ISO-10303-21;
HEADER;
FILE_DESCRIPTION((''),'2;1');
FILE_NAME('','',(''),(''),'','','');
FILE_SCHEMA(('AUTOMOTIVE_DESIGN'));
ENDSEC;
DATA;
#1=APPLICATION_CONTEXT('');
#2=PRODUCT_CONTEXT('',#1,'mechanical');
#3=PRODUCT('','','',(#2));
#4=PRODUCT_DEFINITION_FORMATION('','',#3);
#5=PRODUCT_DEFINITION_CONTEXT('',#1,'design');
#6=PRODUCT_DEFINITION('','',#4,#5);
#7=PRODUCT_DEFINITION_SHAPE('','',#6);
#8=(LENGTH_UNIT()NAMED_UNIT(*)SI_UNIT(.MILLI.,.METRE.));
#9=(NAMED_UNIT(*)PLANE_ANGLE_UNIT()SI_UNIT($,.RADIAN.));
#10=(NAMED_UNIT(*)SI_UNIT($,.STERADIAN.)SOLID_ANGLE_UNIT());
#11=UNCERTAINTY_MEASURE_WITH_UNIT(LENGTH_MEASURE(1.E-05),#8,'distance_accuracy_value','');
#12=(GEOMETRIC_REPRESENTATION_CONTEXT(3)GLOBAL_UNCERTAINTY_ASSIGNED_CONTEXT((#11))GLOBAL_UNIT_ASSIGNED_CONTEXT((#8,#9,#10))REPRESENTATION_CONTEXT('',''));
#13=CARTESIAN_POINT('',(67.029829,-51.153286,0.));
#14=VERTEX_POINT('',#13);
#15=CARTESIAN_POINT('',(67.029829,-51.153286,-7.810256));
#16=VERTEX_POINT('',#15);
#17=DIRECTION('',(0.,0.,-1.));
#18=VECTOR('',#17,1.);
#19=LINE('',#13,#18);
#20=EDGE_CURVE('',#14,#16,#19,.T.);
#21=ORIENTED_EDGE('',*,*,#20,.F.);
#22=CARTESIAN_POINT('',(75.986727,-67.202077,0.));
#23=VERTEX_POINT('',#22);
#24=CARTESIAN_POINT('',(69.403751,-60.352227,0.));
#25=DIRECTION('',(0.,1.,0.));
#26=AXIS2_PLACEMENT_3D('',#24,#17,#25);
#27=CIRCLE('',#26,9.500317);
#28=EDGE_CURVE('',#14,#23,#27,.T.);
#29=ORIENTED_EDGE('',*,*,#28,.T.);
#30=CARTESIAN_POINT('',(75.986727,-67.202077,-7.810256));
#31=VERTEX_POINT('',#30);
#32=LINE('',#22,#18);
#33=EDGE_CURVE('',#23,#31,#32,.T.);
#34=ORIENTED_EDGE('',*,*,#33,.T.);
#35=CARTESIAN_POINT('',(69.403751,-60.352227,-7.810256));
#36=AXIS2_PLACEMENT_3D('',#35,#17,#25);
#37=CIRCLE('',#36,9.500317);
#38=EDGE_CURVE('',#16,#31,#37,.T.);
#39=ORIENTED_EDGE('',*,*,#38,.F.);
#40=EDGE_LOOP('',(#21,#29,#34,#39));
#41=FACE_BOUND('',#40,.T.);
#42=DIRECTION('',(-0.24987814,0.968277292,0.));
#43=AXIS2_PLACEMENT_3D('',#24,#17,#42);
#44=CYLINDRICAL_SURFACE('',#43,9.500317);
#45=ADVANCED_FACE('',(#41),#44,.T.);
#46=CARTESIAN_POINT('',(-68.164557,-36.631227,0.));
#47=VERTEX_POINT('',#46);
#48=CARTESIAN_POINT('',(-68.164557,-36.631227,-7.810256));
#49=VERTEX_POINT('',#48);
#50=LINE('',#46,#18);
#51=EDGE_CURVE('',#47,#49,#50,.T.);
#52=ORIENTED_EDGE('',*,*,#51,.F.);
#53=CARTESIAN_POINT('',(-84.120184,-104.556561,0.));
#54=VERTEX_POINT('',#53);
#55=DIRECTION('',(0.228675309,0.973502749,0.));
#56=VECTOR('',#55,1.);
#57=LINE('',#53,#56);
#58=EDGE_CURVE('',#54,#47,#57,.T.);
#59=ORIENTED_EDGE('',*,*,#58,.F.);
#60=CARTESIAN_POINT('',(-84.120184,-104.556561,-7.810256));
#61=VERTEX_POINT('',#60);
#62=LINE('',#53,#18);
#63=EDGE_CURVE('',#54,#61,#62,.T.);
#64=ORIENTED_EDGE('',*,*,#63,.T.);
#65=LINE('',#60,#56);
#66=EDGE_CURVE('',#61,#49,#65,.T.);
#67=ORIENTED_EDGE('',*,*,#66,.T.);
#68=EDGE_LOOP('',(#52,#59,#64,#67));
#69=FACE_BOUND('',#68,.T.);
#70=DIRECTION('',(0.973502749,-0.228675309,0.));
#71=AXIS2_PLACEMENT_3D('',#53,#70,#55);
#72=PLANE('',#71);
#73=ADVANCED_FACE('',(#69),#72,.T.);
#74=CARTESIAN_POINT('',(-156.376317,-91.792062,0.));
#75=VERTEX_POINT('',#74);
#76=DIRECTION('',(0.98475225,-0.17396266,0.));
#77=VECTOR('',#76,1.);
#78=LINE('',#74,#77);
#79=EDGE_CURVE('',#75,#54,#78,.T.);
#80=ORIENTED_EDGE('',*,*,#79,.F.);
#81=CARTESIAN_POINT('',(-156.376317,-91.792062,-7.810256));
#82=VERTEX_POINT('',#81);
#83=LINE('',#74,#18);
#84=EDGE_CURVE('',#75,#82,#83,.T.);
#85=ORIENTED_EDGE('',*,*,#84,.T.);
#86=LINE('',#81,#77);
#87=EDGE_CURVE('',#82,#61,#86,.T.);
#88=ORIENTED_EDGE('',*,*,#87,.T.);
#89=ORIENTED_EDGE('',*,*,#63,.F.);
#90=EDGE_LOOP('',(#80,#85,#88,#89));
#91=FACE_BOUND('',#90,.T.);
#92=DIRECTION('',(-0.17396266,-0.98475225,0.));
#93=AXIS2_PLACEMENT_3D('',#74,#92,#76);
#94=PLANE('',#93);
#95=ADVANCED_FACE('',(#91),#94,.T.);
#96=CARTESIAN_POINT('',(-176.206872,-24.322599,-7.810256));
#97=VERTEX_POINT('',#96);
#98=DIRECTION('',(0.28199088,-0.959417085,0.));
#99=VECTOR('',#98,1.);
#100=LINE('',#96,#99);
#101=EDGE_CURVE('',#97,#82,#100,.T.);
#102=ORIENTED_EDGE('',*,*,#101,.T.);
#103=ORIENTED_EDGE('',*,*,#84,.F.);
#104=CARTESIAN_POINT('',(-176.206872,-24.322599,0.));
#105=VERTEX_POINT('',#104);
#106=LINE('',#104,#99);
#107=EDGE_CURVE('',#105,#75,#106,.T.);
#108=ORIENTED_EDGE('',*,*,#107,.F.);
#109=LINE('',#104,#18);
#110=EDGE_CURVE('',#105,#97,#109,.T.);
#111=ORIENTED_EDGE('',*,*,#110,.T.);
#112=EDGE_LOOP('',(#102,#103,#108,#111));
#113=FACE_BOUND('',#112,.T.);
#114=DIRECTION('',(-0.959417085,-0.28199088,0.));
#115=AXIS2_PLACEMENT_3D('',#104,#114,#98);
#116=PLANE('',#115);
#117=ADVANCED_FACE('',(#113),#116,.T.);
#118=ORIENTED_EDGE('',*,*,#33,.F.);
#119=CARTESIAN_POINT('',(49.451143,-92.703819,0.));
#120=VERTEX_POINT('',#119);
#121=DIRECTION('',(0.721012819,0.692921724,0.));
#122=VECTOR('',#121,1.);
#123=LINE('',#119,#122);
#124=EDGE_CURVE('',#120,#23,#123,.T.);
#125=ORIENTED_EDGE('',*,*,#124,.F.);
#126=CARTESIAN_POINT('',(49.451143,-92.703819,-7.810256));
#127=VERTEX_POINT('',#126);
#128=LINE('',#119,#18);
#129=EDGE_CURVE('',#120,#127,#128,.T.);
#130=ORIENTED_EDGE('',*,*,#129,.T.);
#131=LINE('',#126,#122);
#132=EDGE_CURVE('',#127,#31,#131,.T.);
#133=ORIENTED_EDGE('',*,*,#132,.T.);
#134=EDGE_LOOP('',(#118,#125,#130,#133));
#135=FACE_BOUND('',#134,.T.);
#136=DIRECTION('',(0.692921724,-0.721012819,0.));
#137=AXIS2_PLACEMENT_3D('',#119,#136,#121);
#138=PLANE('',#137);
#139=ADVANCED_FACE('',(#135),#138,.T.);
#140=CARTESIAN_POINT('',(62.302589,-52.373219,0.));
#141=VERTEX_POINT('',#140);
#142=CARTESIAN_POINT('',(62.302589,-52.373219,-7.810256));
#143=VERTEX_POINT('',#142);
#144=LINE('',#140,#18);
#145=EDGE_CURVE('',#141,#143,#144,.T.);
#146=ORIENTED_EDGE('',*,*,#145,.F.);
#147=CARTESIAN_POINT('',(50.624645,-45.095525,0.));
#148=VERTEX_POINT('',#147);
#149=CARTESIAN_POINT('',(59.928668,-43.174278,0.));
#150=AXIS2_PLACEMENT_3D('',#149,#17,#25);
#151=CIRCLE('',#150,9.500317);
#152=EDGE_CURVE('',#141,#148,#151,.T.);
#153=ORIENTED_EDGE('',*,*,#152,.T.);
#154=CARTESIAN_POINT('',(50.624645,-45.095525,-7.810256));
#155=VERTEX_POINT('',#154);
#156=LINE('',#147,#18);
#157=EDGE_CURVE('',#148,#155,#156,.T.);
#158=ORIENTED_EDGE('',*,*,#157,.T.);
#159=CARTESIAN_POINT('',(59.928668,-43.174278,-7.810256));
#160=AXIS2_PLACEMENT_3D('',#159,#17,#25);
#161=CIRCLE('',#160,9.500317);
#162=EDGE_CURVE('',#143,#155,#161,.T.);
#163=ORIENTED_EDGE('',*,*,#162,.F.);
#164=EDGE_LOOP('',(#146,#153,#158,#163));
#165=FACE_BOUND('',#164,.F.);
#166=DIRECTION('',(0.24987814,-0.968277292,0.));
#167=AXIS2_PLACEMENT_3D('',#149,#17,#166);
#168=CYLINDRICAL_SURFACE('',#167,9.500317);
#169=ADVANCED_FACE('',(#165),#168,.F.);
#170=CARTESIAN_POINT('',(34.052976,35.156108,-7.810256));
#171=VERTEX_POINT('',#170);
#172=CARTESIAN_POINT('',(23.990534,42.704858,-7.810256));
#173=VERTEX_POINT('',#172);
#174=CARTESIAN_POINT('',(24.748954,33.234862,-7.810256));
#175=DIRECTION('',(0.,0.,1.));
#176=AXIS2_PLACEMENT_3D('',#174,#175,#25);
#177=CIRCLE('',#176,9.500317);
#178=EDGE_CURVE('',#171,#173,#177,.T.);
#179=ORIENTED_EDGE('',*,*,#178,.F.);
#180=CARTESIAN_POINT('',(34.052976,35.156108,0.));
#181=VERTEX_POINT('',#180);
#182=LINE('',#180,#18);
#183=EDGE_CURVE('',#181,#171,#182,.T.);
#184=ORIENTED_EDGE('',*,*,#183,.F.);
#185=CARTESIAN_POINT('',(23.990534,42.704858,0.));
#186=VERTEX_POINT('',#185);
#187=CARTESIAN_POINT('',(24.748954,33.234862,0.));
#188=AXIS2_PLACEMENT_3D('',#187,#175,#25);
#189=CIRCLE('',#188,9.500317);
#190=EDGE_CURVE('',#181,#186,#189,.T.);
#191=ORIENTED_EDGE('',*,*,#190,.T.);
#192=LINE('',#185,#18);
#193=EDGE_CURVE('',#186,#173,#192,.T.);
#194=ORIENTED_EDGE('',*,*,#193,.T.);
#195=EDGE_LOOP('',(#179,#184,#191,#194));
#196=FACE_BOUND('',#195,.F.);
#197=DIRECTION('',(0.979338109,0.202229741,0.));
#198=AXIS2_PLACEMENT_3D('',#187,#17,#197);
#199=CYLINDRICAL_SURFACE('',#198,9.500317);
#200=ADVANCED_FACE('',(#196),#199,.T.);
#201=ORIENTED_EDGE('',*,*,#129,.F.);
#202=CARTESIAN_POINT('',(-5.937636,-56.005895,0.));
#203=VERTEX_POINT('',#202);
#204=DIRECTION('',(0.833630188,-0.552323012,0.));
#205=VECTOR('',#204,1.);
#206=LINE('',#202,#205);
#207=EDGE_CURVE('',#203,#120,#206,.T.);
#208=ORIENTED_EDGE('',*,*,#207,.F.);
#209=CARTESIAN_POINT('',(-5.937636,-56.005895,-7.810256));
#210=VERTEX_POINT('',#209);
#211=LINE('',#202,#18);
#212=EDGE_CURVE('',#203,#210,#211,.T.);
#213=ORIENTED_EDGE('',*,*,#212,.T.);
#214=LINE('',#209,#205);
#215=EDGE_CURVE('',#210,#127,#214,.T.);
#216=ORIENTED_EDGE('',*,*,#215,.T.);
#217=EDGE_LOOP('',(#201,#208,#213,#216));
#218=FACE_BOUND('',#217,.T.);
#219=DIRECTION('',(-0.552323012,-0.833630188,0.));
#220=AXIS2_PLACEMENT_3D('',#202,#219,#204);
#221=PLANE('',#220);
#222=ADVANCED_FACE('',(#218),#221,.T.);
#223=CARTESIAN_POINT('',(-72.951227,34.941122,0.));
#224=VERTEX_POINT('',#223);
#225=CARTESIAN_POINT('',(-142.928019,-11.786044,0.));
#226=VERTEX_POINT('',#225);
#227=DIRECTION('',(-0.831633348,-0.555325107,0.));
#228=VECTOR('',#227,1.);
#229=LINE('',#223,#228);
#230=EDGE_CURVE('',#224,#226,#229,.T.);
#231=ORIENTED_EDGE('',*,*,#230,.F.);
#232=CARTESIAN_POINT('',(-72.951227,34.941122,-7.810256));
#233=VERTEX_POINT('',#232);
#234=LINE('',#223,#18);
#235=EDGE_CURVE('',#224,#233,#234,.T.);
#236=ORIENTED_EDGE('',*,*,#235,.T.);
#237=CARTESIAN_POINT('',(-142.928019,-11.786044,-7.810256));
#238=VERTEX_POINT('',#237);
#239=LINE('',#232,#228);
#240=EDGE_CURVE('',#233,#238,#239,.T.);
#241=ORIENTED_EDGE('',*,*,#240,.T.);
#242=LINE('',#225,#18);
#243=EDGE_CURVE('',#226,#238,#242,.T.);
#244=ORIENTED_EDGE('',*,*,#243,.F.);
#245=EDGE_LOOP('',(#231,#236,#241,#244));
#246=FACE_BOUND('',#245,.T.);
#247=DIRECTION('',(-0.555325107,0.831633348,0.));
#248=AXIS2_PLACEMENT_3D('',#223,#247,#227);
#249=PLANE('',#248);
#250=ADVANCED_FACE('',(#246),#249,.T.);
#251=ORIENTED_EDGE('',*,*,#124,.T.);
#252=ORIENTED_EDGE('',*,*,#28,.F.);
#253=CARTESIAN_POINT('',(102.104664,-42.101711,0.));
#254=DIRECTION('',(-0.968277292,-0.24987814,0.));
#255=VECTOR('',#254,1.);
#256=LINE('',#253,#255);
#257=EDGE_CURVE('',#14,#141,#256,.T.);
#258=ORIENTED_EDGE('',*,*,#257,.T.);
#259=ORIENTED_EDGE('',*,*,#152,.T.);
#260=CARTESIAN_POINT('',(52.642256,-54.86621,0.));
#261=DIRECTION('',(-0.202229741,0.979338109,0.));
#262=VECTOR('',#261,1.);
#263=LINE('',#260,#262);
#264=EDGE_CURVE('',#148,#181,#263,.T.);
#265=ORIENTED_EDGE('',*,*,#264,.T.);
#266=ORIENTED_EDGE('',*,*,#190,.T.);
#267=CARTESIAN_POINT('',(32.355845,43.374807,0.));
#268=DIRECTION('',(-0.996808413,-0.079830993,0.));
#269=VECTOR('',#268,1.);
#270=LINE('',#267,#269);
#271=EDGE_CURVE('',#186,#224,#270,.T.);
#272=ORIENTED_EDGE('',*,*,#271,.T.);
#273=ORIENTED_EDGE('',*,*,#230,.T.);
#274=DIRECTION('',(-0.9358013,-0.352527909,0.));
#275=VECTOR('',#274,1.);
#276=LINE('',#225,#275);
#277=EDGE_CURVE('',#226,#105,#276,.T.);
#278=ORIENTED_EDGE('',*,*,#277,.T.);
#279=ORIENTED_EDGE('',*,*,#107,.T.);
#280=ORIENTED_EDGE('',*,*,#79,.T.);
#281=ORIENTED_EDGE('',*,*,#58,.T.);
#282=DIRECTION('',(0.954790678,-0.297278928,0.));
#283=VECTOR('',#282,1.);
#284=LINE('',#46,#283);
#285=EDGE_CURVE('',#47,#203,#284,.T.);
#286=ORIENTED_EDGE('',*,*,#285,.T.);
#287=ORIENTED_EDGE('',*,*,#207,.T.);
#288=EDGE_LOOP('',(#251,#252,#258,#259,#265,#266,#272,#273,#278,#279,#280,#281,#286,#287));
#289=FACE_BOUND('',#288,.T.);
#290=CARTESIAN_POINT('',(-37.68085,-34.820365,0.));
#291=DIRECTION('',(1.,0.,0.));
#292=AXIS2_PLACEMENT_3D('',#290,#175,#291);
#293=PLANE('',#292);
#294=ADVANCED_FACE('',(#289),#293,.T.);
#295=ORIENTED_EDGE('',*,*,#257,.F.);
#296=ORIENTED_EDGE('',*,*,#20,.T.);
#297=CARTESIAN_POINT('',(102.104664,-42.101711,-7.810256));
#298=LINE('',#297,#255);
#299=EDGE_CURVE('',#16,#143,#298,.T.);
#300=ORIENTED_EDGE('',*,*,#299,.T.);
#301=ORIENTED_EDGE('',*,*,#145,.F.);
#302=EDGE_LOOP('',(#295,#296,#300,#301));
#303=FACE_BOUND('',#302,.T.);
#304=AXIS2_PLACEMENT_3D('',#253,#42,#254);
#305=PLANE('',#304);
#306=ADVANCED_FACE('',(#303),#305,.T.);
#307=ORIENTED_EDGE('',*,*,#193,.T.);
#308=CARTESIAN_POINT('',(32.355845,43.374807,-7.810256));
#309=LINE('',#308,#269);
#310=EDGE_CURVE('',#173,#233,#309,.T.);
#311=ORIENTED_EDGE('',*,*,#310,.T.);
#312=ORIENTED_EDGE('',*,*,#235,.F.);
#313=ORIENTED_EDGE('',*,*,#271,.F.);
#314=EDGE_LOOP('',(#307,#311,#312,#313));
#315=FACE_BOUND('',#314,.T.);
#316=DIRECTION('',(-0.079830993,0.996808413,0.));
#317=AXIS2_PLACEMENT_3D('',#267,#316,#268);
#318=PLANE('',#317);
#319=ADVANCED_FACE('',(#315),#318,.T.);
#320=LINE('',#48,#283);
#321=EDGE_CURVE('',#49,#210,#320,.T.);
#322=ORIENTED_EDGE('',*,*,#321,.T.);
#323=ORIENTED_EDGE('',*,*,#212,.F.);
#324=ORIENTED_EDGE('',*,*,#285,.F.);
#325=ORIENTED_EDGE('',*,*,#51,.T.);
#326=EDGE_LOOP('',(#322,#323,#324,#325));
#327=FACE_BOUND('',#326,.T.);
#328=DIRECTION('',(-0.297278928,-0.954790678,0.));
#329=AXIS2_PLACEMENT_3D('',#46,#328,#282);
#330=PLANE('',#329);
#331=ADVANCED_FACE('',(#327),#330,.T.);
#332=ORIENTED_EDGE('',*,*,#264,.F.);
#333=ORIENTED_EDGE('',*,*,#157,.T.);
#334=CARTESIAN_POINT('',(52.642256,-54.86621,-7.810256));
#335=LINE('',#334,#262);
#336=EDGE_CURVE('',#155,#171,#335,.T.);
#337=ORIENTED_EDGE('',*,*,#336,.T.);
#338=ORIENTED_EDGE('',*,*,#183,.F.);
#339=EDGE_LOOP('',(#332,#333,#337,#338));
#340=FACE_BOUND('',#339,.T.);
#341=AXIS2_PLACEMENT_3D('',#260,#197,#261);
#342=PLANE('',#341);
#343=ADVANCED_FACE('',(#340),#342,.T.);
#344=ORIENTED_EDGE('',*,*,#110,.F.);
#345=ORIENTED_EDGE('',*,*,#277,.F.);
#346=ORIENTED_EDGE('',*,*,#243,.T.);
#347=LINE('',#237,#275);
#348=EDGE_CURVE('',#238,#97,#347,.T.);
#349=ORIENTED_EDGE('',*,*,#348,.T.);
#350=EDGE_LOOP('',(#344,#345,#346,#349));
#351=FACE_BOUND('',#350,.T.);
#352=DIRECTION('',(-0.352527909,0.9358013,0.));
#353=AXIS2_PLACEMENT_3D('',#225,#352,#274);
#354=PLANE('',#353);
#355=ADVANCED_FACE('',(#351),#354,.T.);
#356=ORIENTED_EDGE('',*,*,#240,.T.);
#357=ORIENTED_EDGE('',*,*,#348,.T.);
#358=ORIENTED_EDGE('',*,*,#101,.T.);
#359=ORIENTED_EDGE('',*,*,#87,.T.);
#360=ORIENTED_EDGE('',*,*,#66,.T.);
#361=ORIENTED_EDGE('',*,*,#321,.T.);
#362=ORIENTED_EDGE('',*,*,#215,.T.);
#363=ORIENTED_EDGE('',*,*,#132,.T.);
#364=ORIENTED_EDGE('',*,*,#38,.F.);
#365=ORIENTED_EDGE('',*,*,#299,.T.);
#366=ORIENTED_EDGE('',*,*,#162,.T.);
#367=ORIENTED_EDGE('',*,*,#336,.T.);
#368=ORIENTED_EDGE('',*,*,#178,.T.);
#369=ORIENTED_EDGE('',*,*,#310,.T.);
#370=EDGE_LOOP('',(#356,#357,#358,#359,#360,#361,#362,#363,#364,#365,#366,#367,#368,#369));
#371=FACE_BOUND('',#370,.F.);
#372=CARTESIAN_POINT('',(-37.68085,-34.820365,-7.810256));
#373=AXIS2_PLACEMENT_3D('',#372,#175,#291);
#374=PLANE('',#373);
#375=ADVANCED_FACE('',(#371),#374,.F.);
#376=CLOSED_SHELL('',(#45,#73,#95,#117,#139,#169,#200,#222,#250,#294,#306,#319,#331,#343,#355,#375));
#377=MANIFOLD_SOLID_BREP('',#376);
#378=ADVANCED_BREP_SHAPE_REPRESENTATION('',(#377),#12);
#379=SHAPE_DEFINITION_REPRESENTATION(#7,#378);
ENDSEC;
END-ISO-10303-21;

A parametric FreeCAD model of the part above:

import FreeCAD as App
import Part
import Sketcher

V = App.Vector
Q = App.Units.Quantity


def edges_at(feature, points):
    """Names of the edges that pass closest to the given points."""
    edges = feature.Shape.Edges
    near = lambda p: min(range(len(edges)), key=lambda i: edges[i].distToShape(Part.Vertex(*p))[0])
    return sorted({f"Edge{near(p) + 1}" for p in points})

doc = App.newDocument("Part")
body = doc.addObject("PartDesign::Body", "Body")

# Sketch on XY plane
sketch1 = body.newObject("Sketcher::SketchObject", "Sketch")
sketch1.AttachmentSupport = (doc.getObject("XY_Plane"), [""])
sketch1.MapMode = "FlatFace"
sketch1.addGeometry(Part.LineSegment(V(102, -42, 0), V(53, -55, 0)), False)
sketch1.addGeometry(Part.LineSegment(V(53, -55, 0), V(32, 43, 0)), False)
sketch1.addGeometry(Part.LineSegment(V(32, 43, 0), V(-73, 35, 0)), False)
sketch1.addGeometry(Part.LineSegment(V(-73, 35, 0), V(-143, -12, 0)), False)
sketch1.addGeometry(Part.LineSegment(V(-143, -12, 0), V(-176, -24, 0)), False)
sketch1.addGeometry(Part.LineSegment(V(-176, -24, 0), V(-156, -92, 0)), False)
sketch1.addGeometry(Part.LineSegment(V(-156, -92, 0), V(-84, -105, 0)), False)
sketch1.addGeometry(Part.LineSegment(V(-84, -105, 0), V(-68, -37, 0)), False)
sketch1.addGeometry(Part.LineSegment(V(-68, -37, 0), V(-6, -56, 0)), False)
sketch1.addGeometry(Part.LineSegment(V(-6, -56, 0), V(49, -93, 0)), False)
sketch1.addGeometry(Part.LineSegment(V(49, -93, 0), V(102, -42, 0)), False)
sketch1.addConstraint(Sketcher.Constraint("Coincident", 0, 2, 1, 1))
sketch1.addConstraint(Sketcher.Constraint("Coincident", 1, 2, 2, 1))
sketch1.addConstraint(Sketcher.Constraint("Coincident", 2, 2, 3, 1))
sketch1.addConstraint(Sketcher.Constraint("Coincident", 3, 2, 4, 1))
sketch1.addConstraint(Sketcher.Constraint("Coincident", 4, 2, 5, 1))
sketch1.addConstraint(Sketcher.Constraint("Coincident", 5, 2, 6, 1))
sketch1.addConstraint(Sketcher.Constraint("Coincident", 6, 2, 7, 1))
sketch1.addConstraint(Sketcher.Constraint("Coincident", 7, 2, 8, 1))
sketch1.addConstraint(Sketcher.Constraint("Coincident", 8, 2, 9, 1))
sketch1.addConstraint(Sketcher.Constraint("Coincident", 9, 2, 10, 1))
sketch1.addConstraint(Sketcher.Constraint("Coincident", 10, 2, 0, 1))
sketch1.addConstraint(Sketcher.Constraint("DistanceY", 4, 2, -1, 1, Q("24.322599 mm")))
sketch1.addConstraint(Sketcher.Constraint("DistanceY", 6, 2, 5, 2, Q("12.764499 mm")))
sketch1.addConstraint(Sketcher.Constraint("DistanceY", 8, 2, 1, 2, Q("99.380702 mm")))
sketch1.addConstraint(Sketcher.Constraint("DistanceX", 7, 2, 9, 2, Q("117.6157 mm")))
sketch1.addConstraint(Sketcher.Constraint("DistanceY", 0, 2, 10, 2, Q("12.764499 mm")))
sketch1.addConstraint(Sketcher.Constraint("DistanceX", 8, 2, 10, 2, Q("108.0423 mm")))
sketch1.addConstraint(Sketcher.Constraint("Distance", 4, Q("35.561879 mm")))
sketch1.addConstraint(Sketcher.Constraint("Distance", 5, Q("70.323391 mm")))
sketch1.addConstraint(Sketcher.Constraint("DistanceY", 0, 2, -1, 1, Q("54.86621 mm")))
sketch1.addConstraint(Sketcher.Constraint("DistanceX", 3, 2, -1, 1, Q("142.928019 mm")))
sketch1.addConstraint(Sketcher.Constraint("DistanceX", 4, 2, -1, 1, Q("176.206872 mm")))
sketch1.addConstraint(Sketcher.Constraint("DistanceY", 5, 2, -1, 1, Q("91.792062 mm")))
sketch1.addConstraint(Sketcher.Constraint("DistanceY", 9, 2, -1, 1, Q("92.703819 mm")))
sketch1.addConstraint(Sketcher.Constraint("DistanceX", 1, 2, 0, 2, Q("20.286411 mm")))
sketch1.addConstraint(Sketcher.Constraint("DistanceY", 3, 2, 1, 2, Q("55.160851 mm")))
sketch1.addConstraint(Sketcher.Constraint("DistanceY", 4, 2, 2, 2, Q("59.263721 mm")))
sketch1.addConstraint(Sketcher.Constraint("DistanceX", 4, 2, 0, 2, Q("228.849128 mm")))
sketch1.addConstraint(Sketcher.Constraint("DistanceX", 5, 2, 2, 2, Q("83.42509 mm")))
sketch1.addConstraint(Sketcher.Constraint("DistanceX", 4, 2, 6, 2, Q("92.086688 mm")))
sketch1.addConstraint(Sketcher.Constraint("DistanceX", 2, 2, 7, 2, Q("4.78667 mm")))
sketch1.addConstraint(Sketcher.Constraint("DistanceY", 7, 2, 2, 2, Q("71.572349 mm")))
sketch1.addConstraint(Sketcher.Constraint("DistanceX", 7, 2, 8, 2, Q("62.226921 mm")))
pad1 = body.newObject("PartDesign::Pad", "Pad")
pad1.Profile = sketch1
pad1.Length = 7.810256
pad1.Reversed = True
doc.recompute()

fillet = body.newObject("PartDesign::Fillet", "Fillet")
fillet.Base = (pad1, edges_at(pad1, [(102.105, -42.102, -3.905), (52.642, -54.866, -3.905), (32.356, 43.375, -3.905)]))
fillet.Radius = 9.500317

doc.recompute()
